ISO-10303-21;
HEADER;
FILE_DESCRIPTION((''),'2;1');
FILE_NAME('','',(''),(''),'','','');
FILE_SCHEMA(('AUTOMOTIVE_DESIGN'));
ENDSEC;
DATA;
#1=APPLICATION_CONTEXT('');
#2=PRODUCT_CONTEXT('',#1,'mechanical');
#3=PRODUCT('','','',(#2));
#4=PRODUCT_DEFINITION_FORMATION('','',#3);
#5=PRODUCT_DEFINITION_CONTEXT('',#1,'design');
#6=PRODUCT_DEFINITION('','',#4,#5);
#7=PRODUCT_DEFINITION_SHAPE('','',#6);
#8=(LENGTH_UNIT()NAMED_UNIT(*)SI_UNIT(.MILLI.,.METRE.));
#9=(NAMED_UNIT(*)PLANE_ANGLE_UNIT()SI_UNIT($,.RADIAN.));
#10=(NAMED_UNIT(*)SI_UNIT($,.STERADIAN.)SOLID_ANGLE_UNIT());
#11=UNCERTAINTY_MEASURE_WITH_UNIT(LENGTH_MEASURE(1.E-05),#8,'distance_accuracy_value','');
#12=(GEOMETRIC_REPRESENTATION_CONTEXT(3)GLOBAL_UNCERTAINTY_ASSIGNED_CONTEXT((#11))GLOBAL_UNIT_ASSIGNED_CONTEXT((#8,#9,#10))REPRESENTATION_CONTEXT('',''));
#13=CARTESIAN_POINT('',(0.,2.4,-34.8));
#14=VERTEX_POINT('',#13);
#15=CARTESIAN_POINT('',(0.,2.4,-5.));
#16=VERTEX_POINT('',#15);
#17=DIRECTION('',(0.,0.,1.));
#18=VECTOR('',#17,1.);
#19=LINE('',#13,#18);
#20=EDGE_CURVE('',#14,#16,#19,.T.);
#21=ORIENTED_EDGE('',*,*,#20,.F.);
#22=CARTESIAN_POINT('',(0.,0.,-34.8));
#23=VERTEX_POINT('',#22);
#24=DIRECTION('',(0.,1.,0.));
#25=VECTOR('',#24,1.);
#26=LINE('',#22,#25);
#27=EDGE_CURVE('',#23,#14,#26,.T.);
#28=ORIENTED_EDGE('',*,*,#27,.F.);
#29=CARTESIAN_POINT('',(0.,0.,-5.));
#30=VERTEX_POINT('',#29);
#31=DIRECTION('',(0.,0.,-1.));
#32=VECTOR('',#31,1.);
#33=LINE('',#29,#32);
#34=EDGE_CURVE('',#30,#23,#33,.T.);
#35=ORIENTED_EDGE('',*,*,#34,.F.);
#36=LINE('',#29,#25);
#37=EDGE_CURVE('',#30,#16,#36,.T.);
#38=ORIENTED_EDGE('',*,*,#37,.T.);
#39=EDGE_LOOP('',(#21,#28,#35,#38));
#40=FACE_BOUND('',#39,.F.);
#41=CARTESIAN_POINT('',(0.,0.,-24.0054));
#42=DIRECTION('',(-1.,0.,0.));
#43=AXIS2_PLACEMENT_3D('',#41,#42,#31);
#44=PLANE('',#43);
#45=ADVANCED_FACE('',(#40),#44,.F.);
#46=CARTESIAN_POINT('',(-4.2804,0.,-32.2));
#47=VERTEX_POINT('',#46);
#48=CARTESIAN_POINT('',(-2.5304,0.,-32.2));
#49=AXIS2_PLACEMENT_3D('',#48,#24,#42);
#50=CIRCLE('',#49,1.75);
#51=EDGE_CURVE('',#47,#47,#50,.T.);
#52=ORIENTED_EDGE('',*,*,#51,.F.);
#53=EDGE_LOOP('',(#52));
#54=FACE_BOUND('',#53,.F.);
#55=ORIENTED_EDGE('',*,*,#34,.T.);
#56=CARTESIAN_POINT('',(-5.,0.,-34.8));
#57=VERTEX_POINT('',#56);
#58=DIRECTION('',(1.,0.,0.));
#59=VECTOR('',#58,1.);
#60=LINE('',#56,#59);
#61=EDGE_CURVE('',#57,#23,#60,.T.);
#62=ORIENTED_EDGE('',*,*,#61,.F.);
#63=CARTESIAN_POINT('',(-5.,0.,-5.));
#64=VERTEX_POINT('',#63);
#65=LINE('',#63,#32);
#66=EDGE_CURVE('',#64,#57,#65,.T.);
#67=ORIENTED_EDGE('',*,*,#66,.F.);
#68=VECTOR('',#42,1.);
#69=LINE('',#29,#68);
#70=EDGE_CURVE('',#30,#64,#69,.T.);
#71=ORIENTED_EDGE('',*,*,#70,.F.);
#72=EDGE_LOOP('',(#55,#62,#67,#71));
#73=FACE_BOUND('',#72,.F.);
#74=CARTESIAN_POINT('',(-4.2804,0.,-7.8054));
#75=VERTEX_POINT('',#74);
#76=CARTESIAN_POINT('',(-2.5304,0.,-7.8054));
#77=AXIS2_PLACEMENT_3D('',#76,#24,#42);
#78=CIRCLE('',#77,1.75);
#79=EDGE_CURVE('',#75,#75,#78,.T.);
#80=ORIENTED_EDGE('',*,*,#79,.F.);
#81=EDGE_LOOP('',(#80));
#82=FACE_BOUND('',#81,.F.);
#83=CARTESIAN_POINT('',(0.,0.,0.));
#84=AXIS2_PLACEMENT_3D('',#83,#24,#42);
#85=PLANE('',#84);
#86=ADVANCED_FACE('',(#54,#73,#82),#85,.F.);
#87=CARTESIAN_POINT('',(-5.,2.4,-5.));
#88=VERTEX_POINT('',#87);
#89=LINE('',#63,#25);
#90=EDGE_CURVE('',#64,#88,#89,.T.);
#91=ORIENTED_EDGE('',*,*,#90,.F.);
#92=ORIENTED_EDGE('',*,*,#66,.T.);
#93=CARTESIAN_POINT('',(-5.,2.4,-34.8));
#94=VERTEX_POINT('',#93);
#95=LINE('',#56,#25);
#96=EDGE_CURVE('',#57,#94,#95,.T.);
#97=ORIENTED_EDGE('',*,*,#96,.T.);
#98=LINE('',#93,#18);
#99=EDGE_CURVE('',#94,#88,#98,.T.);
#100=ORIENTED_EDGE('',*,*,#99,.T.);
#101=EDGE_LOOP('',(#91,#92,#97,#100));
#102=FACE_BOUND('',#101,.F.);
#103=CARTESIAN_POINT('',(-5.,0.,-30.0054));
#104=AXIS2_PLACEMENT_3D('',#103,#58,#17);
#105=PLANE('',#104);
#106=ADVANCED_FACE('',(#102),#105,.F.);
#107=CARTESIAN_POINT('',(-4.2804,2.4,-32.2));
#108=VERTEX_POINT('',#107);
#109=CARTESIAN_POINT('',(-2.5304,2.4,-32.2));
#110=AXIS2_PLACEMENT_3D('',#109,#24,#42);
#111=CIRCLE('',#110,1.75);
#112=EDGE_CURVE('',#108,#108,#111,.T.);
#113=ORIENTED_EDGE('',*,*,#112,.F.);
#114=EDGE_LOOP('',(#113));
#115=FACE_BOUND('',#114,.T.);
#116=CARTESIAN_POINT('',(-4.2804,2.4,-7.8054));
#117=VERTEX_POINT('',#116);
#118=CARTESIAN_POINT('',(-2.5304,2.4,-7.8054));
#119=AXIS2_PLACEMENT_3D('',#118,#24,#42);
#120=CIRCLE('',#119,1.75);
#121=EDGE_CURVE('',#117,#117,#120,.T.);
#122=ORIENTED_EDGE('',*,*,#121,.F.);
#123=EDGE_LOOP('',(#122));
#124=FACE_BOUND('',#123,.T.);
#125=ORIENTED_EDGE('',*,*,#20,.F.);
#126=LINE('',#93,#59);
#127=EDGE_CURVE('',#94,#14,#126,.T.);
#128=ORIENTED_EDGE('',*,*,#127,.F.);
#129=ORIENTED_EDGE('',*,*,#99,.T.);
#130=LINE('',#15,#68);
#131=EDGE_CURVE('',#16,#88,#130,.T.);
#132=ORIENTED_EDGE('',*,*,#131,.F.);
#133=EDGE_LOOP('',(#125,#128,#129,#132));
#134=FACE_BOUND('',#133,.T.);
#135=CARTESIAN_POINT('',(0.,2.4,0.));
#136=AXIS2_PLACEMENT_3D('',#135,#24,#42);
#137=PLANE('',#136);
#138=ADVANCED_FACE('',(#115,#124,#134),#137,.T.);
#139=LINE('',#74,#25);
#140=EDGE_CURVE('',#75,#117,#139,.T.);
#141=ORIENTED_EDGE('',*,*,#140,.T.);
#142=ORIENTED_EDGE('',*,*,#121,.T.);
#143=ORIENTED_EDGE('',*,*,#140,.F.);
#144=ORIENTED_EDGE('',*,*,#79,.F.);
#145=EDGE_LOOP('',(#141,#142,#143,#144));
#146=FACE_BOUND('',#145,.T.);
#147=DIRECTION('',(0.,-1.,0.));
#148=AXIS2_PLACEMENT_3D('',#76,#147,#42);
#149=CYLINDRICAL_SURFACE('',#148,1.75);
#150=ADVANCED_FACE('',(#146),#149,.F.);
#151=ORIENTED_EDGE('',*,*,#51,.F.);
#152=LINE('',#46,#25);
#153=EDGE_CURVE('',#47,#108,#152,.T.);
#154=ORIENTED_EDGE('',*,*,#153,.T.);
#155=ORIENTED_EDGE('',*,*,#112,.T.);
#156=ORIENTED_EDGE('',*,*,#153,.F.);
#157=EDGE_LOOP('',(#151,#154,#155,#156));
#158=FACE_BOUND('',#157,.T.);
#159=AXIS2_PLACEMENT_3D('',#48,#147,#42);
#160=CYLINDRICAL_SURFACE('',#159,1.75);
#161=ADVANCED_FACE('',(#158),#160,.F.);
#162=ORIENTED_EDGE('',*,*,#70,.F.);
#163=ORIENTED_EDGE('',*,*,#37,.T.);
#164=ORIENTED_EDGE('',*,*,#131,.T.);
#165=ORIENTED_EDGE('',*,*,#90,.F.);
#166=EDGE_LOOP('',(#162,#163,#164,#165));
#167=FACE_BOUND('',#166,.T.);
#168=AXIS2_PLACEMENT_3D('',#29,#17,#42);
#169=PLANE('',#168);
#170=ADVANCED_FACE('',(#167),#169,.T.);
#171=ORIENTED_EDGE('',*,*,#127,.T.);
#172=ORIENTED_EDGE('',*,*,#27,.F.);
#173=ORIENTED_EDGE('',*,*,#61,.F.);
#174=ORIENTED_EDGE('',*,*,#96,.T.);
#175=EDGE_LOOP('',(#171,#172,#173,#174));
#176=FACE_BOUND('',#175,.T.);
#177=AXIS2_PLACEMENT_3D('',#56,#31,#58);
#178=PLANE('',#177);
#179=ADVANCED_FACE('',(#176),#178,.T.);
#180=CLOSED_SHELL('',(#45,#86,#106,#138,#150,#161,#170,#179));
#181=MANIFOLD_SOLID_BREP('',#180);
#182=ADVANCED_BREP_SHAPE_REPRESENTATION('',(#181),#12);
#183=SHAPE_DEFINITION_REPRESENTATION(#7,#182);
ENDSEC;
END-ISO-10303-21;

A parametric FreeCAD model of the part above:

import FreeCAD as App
import Part
import Sketcher
from FreeCAD import Vector
Q = App.Units.Quantity

doc = App.newDocument("Part")
body = doc.addObject("PartDesign::Body", "Body")

sketch1 = body.newObject("Sketcher::SketchObject", "Sketch")
sketch1.AttachmentSupport = (doc.getObject("XZ_Plane"), [""])
sketch1.MapMode = "FlatFace"
sketch1.addGeometry([
    Part.LineSegment(Vector(0, -34.8, 0), Vector(-5, -34.8, 0)),
    Part.LineSegment(Vector(-5, -34.8, 0), Vector(-5, -5, 0)),
    Part.LineSegment(Vector(-5, -5, 0), Vector(0, -5, 0)),
    Part.LineSegment(Vector(0, -5, 0), Vector(0, -34.8, 0)),
    Part.Circle(Vector(-2.5, -32.2, 0), Vector(0, 0, 1), 1.8),
    Part.Circle(Vector(-2.5, -7.8, 0), Vector(0, 0, 1), 1.8),
], False)
sketch1.addConstraint([
    Sketcher.Constraint("Coincident", 0, 2, 1, 1),
    Sketcher.Constraint("Coincident", 1, 2, 2, 1),
    Sketcher.Constraint("Coincident", 2, 2, 3, 1),
    Sketcher.Constraint("Coincident", 3, 2, 0, 1),
    Sketcher.Constraint("Horizontal", 0),
    Sketcher.Constraint("Vertical", 1),
    Sketcher.Constraint("Horizontal", 2),
    Sketcher.Constraint("Vertical", 3),
    Sketcher.Constraint("Equal", 4, 5),
    Sketcher.Constraint("PointOnObject", 2, 2, -2),
    Sketcher.Constraint("Vertical", 4, 3, 5, 3),
    Sketcher.Constraint("Diameter", 4, Q("3.5 mm")),
    Sketcher.Constraint("DistanceX", 0, 2, 0, 1, Q("5 mm")),
    Sketcher.Constraint("DistanceY", 1, 1, 1, 2, Q("29.8 mm")),
    Sketcher.Constraint("DistanceY", 1, 2, -1, 1, Q("5 mm")),
    Sketcher.Constraint("DistanceY", 4, 3, -1, 1, Q("32.2 mm")),
    Sketcher.Constraint("DistanceX", 4, 3, -1, 1, Q("2.5304 mm")),
    Sketcher.Constraint("DistanceY", 5, 3, -1, 1, Q("7.8054 mm")),
])
pad1 = body.newObject("PartDesign::Pad", "Pad")
pad1.Profile = sketch1
pad1.Length = 2.4
pad1.Reversed = True

doc.recompute()
